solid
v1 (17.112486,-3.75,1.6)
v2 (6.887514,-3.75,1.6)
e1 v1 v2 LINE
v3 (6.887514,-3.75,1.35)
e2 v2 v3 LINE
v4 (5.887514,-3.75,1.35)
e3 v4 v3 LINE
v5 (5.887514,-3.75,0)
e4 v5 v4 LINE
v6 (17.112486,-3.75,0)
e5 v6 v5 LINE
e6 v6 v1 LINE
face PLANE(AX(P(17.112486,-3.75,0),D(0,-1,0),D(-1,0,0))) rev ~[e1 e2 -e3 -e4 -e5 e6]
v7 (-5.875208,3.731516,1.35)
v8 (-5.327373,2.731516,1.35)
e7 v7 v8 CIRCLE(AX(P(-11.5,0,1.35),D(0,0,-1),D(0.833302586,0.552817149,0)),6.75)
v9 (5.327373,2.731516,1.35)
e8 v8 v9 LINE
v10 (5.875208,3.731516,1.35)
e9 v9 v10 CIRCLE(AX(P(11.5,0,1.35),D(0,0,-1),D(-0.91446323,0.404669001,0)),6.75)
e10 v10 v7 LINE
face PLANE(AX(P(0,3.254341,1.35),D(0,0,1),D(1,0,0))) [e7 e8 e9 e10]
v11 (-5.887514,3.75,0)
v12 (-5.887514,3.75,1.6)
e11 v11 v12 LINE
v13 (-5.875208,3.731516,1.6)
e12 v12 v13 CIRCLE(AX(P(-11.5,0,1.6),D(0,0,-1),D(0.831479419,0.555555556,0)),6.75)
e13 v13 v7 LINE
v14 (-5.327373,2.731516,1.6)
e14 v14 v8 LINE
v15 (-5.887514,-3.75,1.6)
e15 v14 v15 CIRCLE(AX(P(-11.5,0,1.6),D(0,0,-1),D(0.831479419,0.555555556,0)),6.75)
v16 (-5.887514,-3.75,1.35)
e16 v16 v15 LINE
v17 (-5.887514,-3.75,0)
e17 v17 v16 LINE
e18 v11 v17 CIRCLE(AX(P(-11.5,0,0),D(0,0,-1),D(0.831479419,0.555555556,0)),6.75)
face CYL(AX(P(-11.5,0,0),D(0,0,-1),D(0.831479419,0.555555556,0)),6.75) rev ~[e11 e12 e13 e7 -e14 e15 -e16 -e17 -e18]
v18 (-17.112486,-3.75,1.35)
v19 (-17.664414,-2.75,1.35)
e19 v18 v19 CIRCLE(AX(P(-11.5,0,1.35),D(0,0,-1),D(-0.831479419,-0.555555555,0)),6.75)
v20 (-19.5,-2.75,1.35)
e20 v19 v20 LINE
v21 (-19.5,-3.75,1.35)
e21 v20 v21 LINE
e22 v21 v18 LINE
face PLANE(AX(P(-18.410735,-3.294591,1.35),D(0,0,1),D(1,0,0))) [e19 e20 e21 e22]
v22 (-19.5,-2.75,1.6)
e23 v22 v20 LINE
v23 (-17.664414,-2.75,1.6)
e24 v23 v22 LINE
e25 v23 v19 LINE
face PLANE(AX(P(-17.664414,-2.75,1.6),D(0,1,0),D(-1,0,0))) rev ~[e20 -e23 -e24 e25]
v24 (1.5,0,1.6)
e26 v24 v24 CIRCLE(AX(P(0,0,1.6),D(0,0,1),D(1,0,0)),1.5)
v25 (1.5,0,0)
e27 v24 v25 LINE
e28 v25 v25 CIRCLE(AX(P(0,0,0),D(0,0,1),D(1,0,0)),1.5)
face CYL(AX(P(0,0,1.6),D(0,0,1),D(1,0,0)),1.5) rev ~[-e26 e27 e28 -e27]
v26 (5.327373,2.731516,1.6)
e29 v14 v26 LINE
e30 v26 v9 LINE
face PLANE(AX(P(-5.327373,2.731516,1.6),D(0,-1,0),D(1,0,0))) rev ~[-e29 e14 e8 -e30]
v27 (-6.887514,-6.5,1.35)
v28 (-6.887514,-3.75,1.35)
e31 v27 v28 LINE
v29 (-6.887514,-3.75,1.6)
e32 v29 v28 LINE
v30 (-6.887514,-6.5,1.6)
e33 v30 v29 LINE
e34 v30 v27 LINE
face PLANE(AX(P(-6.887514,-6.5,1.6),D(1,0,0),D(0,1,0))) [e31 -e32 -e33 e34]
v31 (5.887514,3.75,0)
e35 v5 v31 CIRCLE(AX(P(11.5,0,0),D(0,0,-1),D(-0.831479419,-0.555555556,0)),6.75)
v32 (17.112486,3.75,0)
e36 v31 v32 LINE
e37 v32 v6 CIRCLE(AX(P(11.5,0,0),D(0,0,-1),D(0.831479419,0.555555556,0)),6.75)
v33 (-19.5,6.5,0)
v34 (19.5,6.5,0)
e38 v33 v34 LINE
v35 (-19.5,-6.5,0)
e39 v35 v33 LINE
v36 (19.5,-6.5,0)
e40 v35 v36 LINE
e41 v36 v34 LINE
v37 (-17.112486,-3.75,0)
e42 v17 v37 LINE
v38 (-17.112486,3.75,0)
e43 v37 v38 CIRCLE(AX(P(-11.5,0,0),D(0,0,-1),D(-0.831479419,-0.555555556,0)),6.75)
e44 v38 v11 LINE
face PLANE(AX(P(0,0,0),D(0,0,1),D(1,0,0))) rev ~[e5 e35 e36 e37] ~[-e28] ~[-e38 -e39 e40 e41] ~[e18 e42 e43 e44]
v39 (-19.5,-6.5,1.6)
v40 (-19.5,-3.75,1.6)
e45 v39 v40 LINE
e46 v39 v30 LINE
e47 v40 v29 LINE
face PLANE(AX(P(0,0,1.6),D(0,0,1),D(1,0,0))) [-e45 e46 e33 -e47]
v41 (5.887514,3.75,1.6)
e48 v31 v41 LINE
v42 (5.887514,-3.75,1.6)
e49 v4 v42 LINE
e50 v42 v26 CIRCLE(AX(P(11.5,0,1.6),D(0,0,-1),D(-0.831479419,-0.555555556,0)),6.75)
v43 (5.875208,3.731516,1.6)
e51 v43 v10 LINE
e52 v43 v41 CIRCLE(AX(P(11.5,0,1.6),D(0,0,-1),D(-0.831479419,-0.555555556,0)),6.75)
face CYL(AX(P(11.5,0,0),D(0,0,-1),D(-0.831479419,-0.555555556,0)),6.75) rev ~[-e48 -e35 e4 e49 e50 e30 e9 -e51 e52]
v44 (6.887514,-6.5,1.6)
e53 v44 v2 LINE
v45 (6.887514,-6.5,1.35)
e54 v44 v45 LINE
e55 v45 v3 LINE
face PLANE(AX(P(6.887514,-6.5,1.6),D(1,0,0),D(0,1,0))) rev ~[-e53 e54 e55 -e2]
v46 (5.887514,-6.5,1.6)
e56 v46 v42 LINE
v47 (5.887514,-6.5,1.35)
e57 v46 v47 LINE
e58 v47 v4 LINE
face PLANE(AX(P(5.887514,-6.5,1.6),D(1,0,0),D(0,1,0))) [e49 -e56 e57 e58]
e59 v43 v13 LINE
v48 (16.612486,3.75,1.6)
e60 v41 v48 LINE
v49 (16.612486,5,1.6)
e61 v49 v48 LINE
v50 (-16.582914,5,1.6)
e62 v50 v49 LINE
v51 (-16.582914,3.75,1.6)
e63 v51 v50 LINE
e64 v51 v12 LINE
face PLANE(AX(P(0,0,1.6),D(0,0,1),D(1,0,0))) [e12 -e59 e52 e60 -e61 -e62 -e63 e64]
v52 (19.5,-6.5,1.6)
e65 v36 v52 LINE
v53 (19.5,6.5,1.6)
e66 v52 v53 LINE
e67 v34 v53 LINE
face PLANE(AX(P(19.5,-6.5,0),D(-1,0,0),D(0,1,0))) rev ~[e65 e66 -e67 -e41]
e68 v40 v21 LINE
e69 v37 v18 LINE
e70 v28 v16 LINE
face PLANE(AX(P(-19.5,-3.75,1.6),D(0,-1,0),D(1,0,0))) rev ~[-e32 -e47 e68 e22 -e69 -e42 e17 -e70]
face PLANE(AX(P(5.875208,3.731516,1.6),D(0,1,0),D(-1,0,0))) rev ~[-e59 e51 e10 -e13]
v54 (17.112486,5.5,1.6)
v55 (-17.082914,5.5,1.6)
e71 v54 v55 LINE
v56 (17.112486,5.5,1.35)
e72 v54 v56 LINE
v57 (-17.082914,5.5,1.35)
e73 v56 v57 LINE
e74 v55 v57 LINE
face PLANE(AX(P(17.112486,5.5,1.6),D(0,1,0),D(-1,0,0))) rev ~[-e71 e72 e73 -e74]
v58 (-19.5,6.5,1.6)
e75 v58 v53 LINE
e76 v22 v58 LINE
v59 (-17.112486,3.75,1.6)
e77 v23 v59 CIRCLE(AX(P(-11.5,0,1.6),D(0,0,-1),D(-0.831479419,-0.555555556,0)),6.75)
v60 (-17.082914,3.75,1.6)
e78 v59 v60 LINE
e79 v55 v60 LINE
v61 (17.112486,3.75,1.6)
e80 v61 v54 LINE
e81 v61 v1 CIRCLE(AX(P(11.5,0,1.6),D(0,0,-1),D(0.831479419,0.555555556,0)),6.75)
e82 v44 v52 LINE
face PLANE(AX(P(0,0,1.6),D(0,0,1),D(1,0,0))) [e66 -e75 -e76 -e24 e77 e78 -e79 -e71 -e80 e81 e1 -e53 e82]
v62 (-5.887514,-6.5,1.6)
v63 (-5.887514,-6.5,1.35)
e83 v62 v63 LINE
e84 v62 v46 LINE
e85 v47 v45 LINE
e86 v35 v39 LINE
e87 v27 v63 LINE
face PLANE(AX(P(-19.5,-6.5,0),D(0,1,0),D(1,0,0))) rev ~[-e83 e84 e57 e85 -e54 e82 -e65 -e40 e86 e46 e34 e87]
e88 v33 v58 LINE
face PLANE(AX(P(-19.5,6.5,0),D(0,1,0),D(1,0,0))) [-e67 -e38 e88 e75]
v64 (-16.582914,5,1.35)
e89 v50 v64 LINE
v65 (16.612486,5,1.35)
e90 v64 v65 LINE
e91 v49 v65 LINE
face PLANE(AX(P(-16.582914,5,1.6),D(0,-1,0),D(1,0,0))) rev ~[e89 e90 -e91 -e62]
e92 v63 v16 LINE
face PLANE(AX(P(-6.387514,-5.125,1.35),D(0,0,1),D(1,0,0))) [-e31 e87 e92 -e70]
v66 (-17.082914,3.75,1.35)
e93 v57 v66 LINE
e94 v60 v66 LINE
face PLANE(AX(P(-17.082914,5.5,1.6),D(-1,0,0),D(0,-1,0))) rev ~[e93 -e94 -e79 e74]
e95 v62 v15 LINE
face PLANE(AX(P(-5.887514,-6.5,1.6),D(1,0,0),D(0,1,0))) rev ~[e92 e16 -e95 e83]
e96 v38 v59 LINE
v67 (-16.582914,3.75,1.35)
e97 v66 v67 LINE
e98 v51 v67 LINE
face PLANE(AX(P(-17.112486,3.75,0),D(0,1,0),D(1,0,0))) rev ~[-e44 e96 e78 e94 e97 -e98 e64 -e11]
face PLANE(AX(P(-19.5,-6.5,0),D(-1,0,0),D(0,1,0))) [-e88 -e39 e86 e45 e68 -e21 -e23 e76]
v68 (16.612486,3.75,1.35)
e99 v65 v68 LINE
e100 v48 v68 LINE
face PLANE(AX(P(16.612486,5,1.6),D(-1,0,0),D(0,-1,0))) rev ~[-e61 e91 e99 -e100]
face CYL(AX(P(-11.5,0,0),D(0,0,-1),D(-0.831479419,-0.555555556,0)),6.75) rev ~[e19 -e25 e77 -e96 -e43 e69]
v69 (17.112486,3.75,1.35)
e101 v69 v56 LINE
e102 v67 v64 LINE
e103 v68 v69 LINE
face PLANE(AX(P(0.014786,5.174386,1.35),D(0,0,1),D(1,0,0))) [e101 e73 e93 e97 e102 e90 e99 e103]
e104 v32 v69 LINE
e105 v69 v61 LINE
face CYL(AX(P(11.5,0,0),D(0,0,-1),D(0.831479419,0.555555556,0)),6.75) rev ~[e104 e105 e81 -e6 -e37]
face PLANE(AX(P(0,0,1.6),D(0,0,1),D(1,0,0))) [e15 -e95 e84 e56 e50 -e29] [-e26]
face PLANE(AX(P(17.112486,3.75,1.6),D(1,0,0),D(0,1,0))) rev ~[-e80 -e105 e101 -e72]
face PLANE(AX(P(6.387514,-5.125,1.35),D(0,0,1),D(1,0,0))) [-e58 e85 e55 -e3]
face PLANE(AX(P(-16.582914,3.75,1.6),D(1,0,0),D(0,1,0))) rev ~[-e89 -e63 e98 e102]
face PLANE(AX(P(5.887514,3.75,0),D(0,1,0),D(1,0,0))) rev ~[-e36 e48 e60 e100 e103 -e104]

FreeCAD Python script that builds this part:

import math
import FreeCAD as App
import Part
import Sketcher

V = App.Vector

doc = App.newDocument("Part")
params = doc.addObject("Spreadsheet::Sheet", "Params")
for row, (alias, value) in enumerate([
    ("sketch1_width", "39 mm"),
    ("sketch1_height", "13 mm"),
    ("sketch1_radius", "6.75 mm"),
    ("pad1_length", "1.6 mm"),
    ("sketch2_width", "1 mm"),
    ("sketch2_radius", "6.75 mm"),
    ("sketch2_width2", "0.5 mm"),
    ("sketch2_height", "1.75 mm"),
    ("sketch2_height2", "1.25 mm"),
    ("pocket1_length", "0.25 mm"),
    ("sketch3_diameter", "3 mm"),
], start=1):
    params.set(f"A{row}", alias)
    params.set(f"B{row}", "=" + value)
    params.setAlias(f"B{row}", alias)

body = doc.addObject("PartDesign::Body", "Body")

# Sketch on XY plane
sketch1 = body.newObject("Sketcher::SketchObject", "Sketch")
sketch1.AttachmentSupport = (doc.getObject("XY_Plane"), [""])
sketch1.MapMode = "FlatFace"
sketch1.addGeometry([
    Part.LineSegment(V(-20, 6, 0), V(-20, -6, 0)),  # 0
    Part.LineSegment(V(-20, -6, 0), V(20, -6, 0)),  # 1
    Part.LineSegment(V(20, -6, 0), V(20, 6, 0)),  # 2
    Part.LineSegment(V(20, 6, 0), V(-20, 6, 0)),  # 3
    Part.LineSegment(V(-17, 4, 0), V(-6, 4, 0)),  # 4
    Part.ArcOfCircle(Part.Circle(V(-12, 0, 0), V(0, 0, 1), 7), math.radians(-34), math.radians(34)),  # 5
    Part.LineSegment(V(-6, -4, 0), V(-17, -4, 0)),  # 6
    Part.ArcOfCircle(Part.Circle(V(-12, 0, 0), V(0, 0, 1), 7), math.radians(146), math.radians(214)),  # 7
    Part.LineSegment(V(17, -4, 0), V(6, -4, 0)),  # 8
    Part.ArcOfCircle(Part.Circle(V(12, 0, 0), V(0, 0, 1), 7), math.radians(146), math.radians(214)),  # 9
    Part.LineSegment(V(6, 4, 0), V(17, 4, 0)),  # 10
    Part.ArcOfCircle(Part.Circle(V(12, 0, 0), V(0, 0, 1), 7), math.radians(-34), math.radians(34)),  # 11
], False)
sketch1.addConstraint([
    Sketcher.Constraint("Coincident", 0, 2, 1, 1),
    Sketcher.Constraint("Coincident", 1, 2, 2, 1),
    Sketcher.Constraint("Coincident", 2, 2, 3, 1),
    Sketcher.Constraint("Coincident", 3, 2, 0, 1),
    Sketcher.Constraint("Coincident", 4, 2, 5, 2),
    Sketcher.Constraint("Coincident", 5, 1, 6, 1),
    Sketcher.Constraint("Coincident", 6, 2, 7, 2),
    Sketcher.Constraint("Coincident", 7, 1, 4, 1),
    Sketcher.Constraint("Coincident", 8, 2, 9, 2),
    Sketcher.Constraint("Coincident", 9, 1, 10, 1),
    Sketcher.Constraint("Coincident", 10, 2, 11, 2),
    Sketcher.Constraint("Coincident", 11, 1, 8, 1),
    Sketcher.Constraint("Vertical", 0),
    Sketcher.Constraint("Horizontal", 1),
    Sketcher.Constraint("Vertical", 2),
    Sketcher.Constraint("Horizontal", 3),
    Sketcher.Constraint("Horizontal", 4),
    Sketcher.Constraint("Horizontal", 6),
    Sketcher.Constraint("Horizontal", 8),
    Sketcher.Constraint("Horizontal", 10),
    Sketcher.Constraint("Coincident", 7, 3, 5, 3),
    Sketcher.Constraint("Coincident", 11, 3, 9, 3),
    Sketcher.Constraint("Equal", 5, 7),
    Sketcher.Constraint("Equal", 7, 9),
    Sketcher.Constraint("Equal", 9, 11),
    Sketcher.Constraint("Symmetric", 5, 3, 9, 3, -1, 1),
    Sketcher.Constraint("Symmetric", 0, 2, 2, 2, -1, 1),
    Sketcher.Constraint("Symmetric", 5, 1, 8, 2, -2),
    Sketcher.Constraint("Horizontal", 7, 1, 9, 1),
    Sketcher.Constraint("Vertical", 4, 2, 5, 1),
    Sketcher.Constraint("DistanceX", 1, 1, 1, 2, 39.0),
    Sketcher.Constraint("DistanceY", 0, 2, 0, 1, 13.0),
    Sketcher.Constraint("Radius", 5, 6.75),
    Sketcher.Constraint("DistanceX", 5, 3, 9, 3, 23.0),
    Sketcher.Constraint("DistanceY", 5, 1, 4, 2, 7.5),
])
sketch1.setExpression("Constraints[30]", "Params.sketch1_width")
sketch1.setExpression("Constraints[31]", "Params.sketch1_height")
sketch1.setExpression("Constraints[32]", "Params.sketch1_radius")
pad1 = body.newObject("PartDesign::Pad", "Pad")
pad1.Profile = sketch1
pad1.setExpression("Length", "Params.pad1_length")

# Sketch on XY plane
sketch2 = body.newObject("Sketcher::SketchObject", "Sketch001")
sketch2.AttachmentSupport = (doc.getObject("XY_Plane"), [""])
sketch2.MapMode = "FlatFace"
sketch2.AttachmentOffset = App.Placement(V(0, 0, 1.6), App.Rotation())
sketch2.addGeometry([
    Part.LineSegment(V(-17.1, 5.5, 0), V(-17.1, 3.8, 0)),  # 0
    Part.LineSegment(V(-17.1, 3.8, 0), V(-16.6, 3.8, 0)),  # 1
    Part.LineSegment(V(-16.6, 3.8, 0), V(-16.6, 5, 0)),  # 2
    Part.LineSegment(V(-16.6, 5, 0), V(16.6, 5, 0)),  # 3
    Part.LineSegment(V(16.6, 5, 0), V(16.6, 3.8, 0)),  # 4
    Part.LineSegment(V(16.6, 3.8, 0), V(17.1, 3.8, 0)),  # 5
    Part.LineSegment(V(17.1, 3.8, 0), V(17.1, 5.5, 0)),  # 6
    Part.LineSegment(V(17.1, 5.5, 0), V(-17.1, 5.5, 0)),  # 7
    Part.ArcOfCircle(Part.Circle(V(-11.5, 0, 0), V(0, 0, 1), 6.7), math.radians(23.87), math.radians(33.56)),  # 8
    Part.LineSegment(V(-5.3, 2.7, 0), V(5.3, 2.7, 0)),  # 9
    Part.ArcOfCircle(Part.Circle(V(11.5, 0, 0), V(0, 0, 1), 6.7), math.radians(146.44), math.radians(156.13)),  # 10
    Part.LineSegment(V(5.9, 3.7, 0), V(-5.9, 3.7, 0)),  # 11
    Part.LineSegment(V(-6.9, -3.8, 0), V(-6.9, -6.5, 0)),  # 12
    Part.LineSegment(V(-6.9, -6.5, 0), V(-5.9, -6.5, 0)),  # 13
    Part.LineSegment(V(-5.9, -6.5, 0), V(-5.9, -3.8, 0)),  # 14
    Part.LineSegment(V(-5.9, -3.8, 0), V(-6.9, -3.8, 0)),  # 15
    Part.LineSegment(V(-19.5, -2.8, 0), V(-19.5, -3.8, 0)),  # 16
    Part.LineSegment(V(-19.5, -3.8, 0), V(-17.1, -3.8, 0)),  # 17
    Part.ArcOfCircle(Part.Circle(V(-11.5, 0, 0), V(0, 0, 1), 6.8), math.radians(-155.96), math.radians(-146.25)),  # 18
    Part.LineSegment(V(-17.7, -2.8, 0), V(-19.5, -2.8, 0)),  # 19
    Part.LineSegment(V(5.9, -3.8, 0), V(5.9, -6.5, 0)),  # 20
    Part.LineSegment(V(5.9, -6.5, 0), V(6.9, -6.5, 0)),  # 21
    Part.LineSegment(V(6.9, -6.5, 0), V(6.9, -3.8, 0)),  # 22
    Part.LineSegment(V(6.9, -3.8, 0), V(5.9, -3.8, 0)),  # 23
], False)
sketch2.addConstraint([
    Sketcher.Constraint("Coincident", 0, 2, 1, 1),
    Sketcher.Constraint("Coincident", 1, 2, 2, 1),
    Sketcher.Constraint("Coincident", 2, 2, 3, 1),
    Sketcher.Constraint("Coincident", 3, 2, 4, 1),
    Sketcher.Constraint("Coincident", 4, 2, 5, 1),
    Sketcher.Constraint("Coincident", 5, 2, 6, 1),
    Sketcher.Constraint("Coincident", 6, 2, 7, 1),
    Sketcher.Constraint("Coincident", 7, 2, 0, 1),
    Sketcher.Constraint("Coincident", 8, 1, 9, 1),
    Sketcher.Constraint("Coincident", 9, 2, 10, 2),
    Sketcher.Constraint("Coincident", 10, 1, 11, 1),
    Sketcher.Constraint("Coincident", 11, 2, 8, 2),
    Sketcher.Constraint("Coincident", 12, 2, 13, 1),
    Sketcher.Constraint("Coincident", 13, 2, 14, 1),
    Sketcher.Constraint("Coincident", 14, 2, 15, 1),
    Sketcher.Constraint("Coincident", 15, 2, 12, 1),
    Sketcher.Constraint("Coincident", 16, 2, 17, 1),
    Sketcher.Constraint("Coincident", 17, 2, 18, 2),
    Sketcher.Constraint("Coincident", 18, 1, 19, 1),
    Sketcher.Constraint("Coincident", 19, 2, 16, 1),
    Sketcher.Constraint("Coincident", 20, 2, 21, 1),
    Sketcher.Constraint("Coincident", 21, 2, 22, 1),
    Sketcher.Constraint("Coincident", 22, 2, 23, 1),
    Sketcher.Constraint("Coincident", 23, 2, 20, 1),
    Sketcher.Constraint("Vertical", 0),
    Sketcher.Constraint("Horizontal", 1),
    Sketcher.Constraint("Vertical", 2),
    Sketcher.Constraint("Horizontal", 3),
    Sketcher.Constraint("Vertical", 4),
    Sketcher.Constraint("Horizontal", 5),
    Sketcher.Constraint("Vertical", 6),
    Sketcher.Constraint("Horizontal", 7),
    Sketcher.Constraint("Horizontal", 9),
    Sketcher.Constraint("Horizontal", 11),
    Sketcher.Constraint("Vertical", 12),
    Sketcher.Constraint("Horizontal", 13),
    Sketcher.Constraint("Vertical", 14),
    Sketcher.Constraint("Horizontal", 15),
    Sketcher.Constraint("Vertical", 16),
    Sketcher.Constraint("Horizontal", 17),
    Sketcher.Constraint("Horizontal", 19),
    Sketcher.Constraint("Vertical", 20),
    Sketcher.Constraint("Horizontal", 21),
    Sketcher.Constraint("Vertical", 22),
    Sketcher.Constraint("Horizontal", 23),
    Sketcher.Constraint("Coincident", 18, 3, 8, 3),
    Sketcher.Constraint("Equal", 8, 10),
    Sketcher.Constraint("Equal", 10, 18),
    Sketcher.Constraint("Symmetric", 8, 3, 10, 3, -1, 1),
    Sketcher.Constraint("Symmetric", 5, 2, 17, 2, -1, 1),
    Sketcher.Constraint("Symmetric", 13, 2, 20, 2, -2),
    Sketcher.Constraint("Symmetric", 15, 2, 22, 2, -2),
    Sketcher.Constraint("PointOnObject", 8, 3, -1),
    Sketcher.Constraint("Horizontal", 1, 2, 4, 2),
    Sketcher.Constraint("Horizontal", 15, 2, 16, 2),
    Sketcher.Constraint("Equal", 1, 5),
    Sketcher.Constraint("Equal", 23, 16),
    Sketcher.Constraint("DistanceX", 13, 1, 13, 2, 1.0),
    Sketcher.Constraint("Radius", 8, 6.75),
    Sketcher.Constraint("DistanceX", 1, 1, 1, 2, 0.5),
    Sketcher.Constraint("DistanceY", -1, 1, 2, 2, 5.0),
    Sketcher.Constraint("DistanceX", 8, 3, 10, 3, 23.0),
    Sketcher.Constraint("DistanceY", 9, 2, 10, 1, 1.0),
    Sketcher.Constraint("DistanceX", 16, 2, 18, 3, 8.0),
    Sketcher.Constraint("DistanceY", 0, 2, 0, 1, 1.75),
    Sketcher.Constraint("DistanceY", 2, 1, 2, 2, 1.25),
    Sketcher.Constraint("DistanceY", 12, 2, 12, 1, 2.75),
    Sketcher.Constraint("DistanceX", 3, 1, 3, 2, 33.195401),
    Sketcher.Constraint("DistanceX", 1, 2, 12, 2, 9.695401),
    Sketcher.Constraint("DistanceX", 9, 1, 9, 2, 10.654746),
])
sketch2.setExpression("Constraints[57]", "Params.sketch2_width")
sketch2.setExpression("Constraints[58]", "Params.sketch2_radius")
sketch2.setExpression("Constraints[59]", "Params.sketch2_width2")
sketch2.setExpression("Constraints[64]", "Params.sketch2_height")
sketch2.setExpression("Constraints[65]", "Params.sketch2_height2")
pocket1 = body.newObject("PartDesign::Pocket", "Pocket")
pocket1.Profile = sketch2
pocket1.setExpression("Length", "Params.pocket1_length")

# Sketch on XY plane
sketch3 = body.newObject("Sketcher::SketchObject", "Sketch002")
sketch3.AttachmentSupport = (doc.getObject("XY_Plane"), [""])
sketch3.MapMode = "FlatFace"
sketch3.AttachmentOffset = App.Placement(V(0, 0, 1.6), App.Rotation())
sketch3.addGeometry(Part.Circle(V(0, 0, 0), V(0, 0, 1), 1.5), False)
sketch3.addConstraint([
    Sketcher.Constraint("Coincident", 0, 3, -1, 1),
    Sketcher.Constraint("Diameter", 0, 3.0),
])
sketch3.setExpression("Constraints[1]", "Params.sketch3_diameter")
pocket2 = body.newObject("PartDesign::Pocket", "Pocket001")
pocket2.Profile = sketch3
pocket2.Type = "ThroughAll"

doc.recompute()
